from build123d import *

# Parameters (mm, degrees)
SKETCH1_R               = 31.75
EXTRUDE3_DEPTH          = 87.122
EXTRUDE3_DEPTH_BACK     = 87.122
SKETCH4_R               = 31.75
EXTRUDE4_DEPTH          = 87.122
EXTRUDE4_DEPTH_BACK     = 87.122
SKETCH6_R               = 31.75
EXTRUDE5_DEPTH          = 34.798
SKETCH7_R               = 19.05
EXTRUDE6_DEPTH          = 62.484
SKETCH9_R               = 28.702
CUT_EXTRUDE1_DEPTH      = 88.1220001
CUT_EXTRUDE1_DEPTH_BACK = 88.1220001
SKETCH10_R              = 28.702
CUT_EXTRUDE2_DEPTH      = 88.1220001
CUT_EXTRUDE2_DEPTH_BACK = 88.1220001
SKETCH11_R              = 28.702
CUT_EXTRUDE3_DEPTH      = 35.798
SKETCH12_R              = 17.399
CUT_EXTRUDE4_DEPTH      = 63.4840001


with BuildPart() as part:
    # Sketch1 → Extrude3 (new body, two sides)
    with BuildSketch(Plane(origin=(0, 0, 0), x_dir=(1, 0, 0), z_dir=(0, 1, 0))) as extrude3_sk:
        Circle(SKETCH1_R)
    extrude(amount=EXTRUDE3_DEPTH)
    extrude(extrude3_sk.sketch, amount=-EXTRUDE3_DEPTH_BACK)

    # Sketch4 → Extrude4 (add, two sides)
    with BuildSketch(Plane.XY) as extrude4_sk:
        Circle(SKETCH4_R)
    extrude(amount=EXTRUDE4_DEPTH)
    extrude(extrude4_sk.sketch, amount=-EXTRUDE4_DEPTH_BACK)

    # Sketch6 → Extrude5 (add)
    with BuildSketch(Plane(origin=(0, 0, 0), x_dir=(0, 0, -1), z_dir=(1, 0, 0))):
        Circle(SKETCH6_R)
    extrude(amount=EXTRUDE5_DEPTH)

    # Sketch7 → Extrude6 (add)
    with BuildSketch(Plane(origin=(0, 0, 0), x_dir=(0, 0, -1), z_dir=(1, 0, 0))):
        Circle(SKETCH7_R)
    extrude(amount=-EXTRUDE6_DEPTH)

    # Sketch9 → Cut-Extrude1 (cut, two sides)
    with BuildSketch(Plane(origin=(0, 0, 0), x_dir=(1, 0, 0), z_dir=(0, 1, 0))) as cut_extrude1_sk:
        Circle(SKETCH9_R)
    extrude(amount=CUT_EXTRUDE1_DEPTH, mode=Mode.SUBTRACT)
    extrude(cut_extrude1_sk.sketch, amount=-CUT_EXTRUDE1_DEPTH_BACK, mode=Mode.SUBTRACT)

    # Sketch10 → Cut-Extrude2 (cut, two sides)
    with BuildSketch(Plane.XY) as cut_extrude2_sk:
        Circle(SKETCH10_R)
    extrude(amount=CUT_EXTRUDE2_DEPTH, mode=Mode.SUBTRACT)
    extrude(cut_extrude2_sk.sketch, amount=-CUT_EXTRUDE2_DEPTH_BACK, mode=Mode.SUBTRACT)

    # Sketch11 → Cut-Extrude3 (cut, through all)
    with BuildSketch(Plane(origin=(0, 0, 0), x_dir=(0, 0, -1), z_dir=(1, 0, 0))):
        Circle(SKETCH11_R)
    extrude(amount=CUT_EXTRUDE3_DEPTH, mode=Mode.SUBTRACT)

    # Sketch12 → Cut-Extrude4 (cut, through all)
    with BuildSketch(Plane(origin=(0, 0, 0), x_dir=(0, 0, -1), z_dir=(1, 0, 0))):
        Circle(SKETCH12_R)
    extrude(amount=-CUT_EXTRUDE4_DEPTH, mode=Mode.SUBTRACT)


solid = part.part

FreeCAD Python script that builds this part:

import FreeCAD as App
import Part
import Sketcher
from FreeCAD import Vector
Q = App.Units.Quantity

doc = App.newDocument("Part")
body = doc.addObject("PartDesign::Body", "Body")

# Sketch on XZ plane
sketch1 = body.newObject("Sketcher::SketchObject", "Sketch")
sketch1.AttachmentSupport = (doc.getObject("XZ_Plane"), [""])
sketch1.MapMode = "FlatFace"
sketch1.addGeometry(Part.Circle(Vector(0, 0, 0), Vector(0, 0, 1), 32), False)
sketch1.addConstraint([
    Sketcher.Constraint("Coincident", 0, 3, -1, 1),
    Sketcher.Constraint("Diameter", 0, Q("2.5 in")),
])
pad1 = body.newObject("PartDesign::Pad", "Pad")
pad1.Profile = sketch1
pad1.Type = "TwoLengths"
pad1.Length = Q("3.43 in")
pad1.Length2 = Q("3.43 in")
pad1.Reversed = True

# Sketch on XY plane
sketch2 = body.newObject("Sketcher::SketchObject", "Sketch001")
sketch2.AttachmentSupport = (doc.getObject("XY_Plane"), [""])
sketch2.MapMode = "FlatFace"
sketch2.addGeometry(Part.Circle(Vector(0, 0, 0), Vector(0, 0, 1), 32), False)
sketch2.addConstraint([
    Sketcher.Constraint("Coincident", 0, 3, -1, 1),
    Sketcher.Constraint("Diameter", 0, Q("2.5 in")),
])
pad2 = body.newObject("PartDesign::Pad", "Pad001")
pad2.Profile = sketch2
pad2.Type = "TwoLengths"
pad2.Length = Q("3.43 in")
pad2.Length2 = Q("3.43 in")

# Sketch on YZ plane
sketch3 = body.newObject("Sketcher::SketchObject", "Sketch002")
sketch3.AttachmentSupport = (doc.getObject("YZ_Plane"), [""])
sketch3.MapMode = "FlatFace"
sketch3.addGeometry(Part.Circle(Vector(0, 0, 0), Vector(0, 0, 1), 32), False)
sketch3.addConstraint([
    Sketcher.Constraint("Coincident", 0, 3, -1, 1),
    Sketcher.Constraint("Diameter", 0, Q("2.5 in")),
])
pad3 = body.newObject("PartDesign::Pad", "Pad002")
pad3.Profile = sketch3
pad3.Length = Q("1.37 in")

# Sketch on YZ plane
sketch4 = body.newObject("Sketcher::SketchObject", "Sketch003")
sketch4.AttachmentSupport = (doc.getObject("YZ_Plane"), [""])
sketch4.MapMode = "FlatFace"
sketch4.addGeometry(Part.Circle(Vector(0, 0, 0), Vector(0, 0, 1), 19), False)
sketch4.addConstraint([
    Sketcher.Constraint("Coincident", 0, 3, -1, 1),
    Sketcher.Constraint("Diameter", 0, Q("1.5 in")),
])
pad4 = body.newObject("PartDesign::Pad", "Pad003")
pad4.Profile = sketch4
pad4.Length = Q("2.46 in")
pad4.Reversed = True

# Sketch on XZ plane
sketch5 = body.newObject("Sketcher::SketchObject", "Sketch004")
sketch5.AttachmentSupport = (doc.getObject("XZ_Plane"), [""])
sketch5.MapMode = "FlatFace"
sketch5.addGeometry(Part.Circle(Vector(0, 0, 0), Vector(0, 0, 1), 29), False)
sketch5.addConstraint([
    Sketcher.Constraint("Coincident", 0, 3, -1, 1),
    Sketcher.Constraint("Diameter", 0, Q("2.26 in")),
])
pocket1 = body.newObject("PartDesign::Pocket", "Pocket")
pocket1.Profile = sketch5
pocket1.Type = "ThroughAll"
pocket1.Midplane = True

# Sketch on XY plane
sketch6 = body.newObject("Sketcher::SketchObject", "Sketch005")
sketch6.AttachmentSupport = (doc.getObject("XY_Plane"), [""])
sketch6.MapMode = "FlatFace"
sketch6.addGeometry(Part.Circle(Vector(0, 0, 0), Vector(0, 0, 1), 29), False)
sketch6.addConstraint([
    Sketcher.Constraint("Coincident", 0, 3, -1, 1),
    Sketcher.Constraint("Diameter", 0, Q("2.26 in")),
])
pocket2 = body.newObject("PartDesign::Pocket", "Pocket001")
pocket2.Profile = sketch6
pocket2.Type = "ThroughAll"
pocket2.Midplane = True

# Sketch on YZ plane
sketch7 = body.newObject("Sketcher::SketchObject", "Sketch006")
sketch7.AttachmentSupport = (doc.getObject("YZ_Plane"), [""])
sketch7.MapMode = "FlatFace"
sketch7.addGeometry(Part.Circle(Vector(0, 0, 0), Vector(0, 0, 1), 29), False)
sketch7.addConstraint([
    Sketcher.Constraint("Coincident", 0, 3, -1, 1),
    Sketcher.Constraint("Diameter", 0, Q("2.26 in")),
])
pocket3 = body.newObject("PartDesign::Pocket", "Pocket002")
pocket3.Profile = sketch7
pocket3.Type = "ThroughAll"
pocket3.Reversed = True

# Sketch on YZ plane
sketch8 = body.newObject("Sketcher::SketchObject", "Sketch007")
sketch8.AttachmentSupport = (doc.getObject("YZ_Plane"), [""])
sketch8.MapMode = "FlatFace"
sketch8.addGeometry(Part.Circle(Vector(0, 0, 0), Vector(0, 0, 1), 17), False)
sketch8.addConstraint([
    Sketcher.Constraint("Coincident", 0, 3, -1, 1),
    Sketcher.Constraint("Diameter", 0, Q("1.37 in")),
])
pocket4 = body.newObject("PartDesign::Pocket", "Pocket003")
pocket4.Profile = sketch8
pocket4.Type = "ThroughAll"

doc.recompute()
